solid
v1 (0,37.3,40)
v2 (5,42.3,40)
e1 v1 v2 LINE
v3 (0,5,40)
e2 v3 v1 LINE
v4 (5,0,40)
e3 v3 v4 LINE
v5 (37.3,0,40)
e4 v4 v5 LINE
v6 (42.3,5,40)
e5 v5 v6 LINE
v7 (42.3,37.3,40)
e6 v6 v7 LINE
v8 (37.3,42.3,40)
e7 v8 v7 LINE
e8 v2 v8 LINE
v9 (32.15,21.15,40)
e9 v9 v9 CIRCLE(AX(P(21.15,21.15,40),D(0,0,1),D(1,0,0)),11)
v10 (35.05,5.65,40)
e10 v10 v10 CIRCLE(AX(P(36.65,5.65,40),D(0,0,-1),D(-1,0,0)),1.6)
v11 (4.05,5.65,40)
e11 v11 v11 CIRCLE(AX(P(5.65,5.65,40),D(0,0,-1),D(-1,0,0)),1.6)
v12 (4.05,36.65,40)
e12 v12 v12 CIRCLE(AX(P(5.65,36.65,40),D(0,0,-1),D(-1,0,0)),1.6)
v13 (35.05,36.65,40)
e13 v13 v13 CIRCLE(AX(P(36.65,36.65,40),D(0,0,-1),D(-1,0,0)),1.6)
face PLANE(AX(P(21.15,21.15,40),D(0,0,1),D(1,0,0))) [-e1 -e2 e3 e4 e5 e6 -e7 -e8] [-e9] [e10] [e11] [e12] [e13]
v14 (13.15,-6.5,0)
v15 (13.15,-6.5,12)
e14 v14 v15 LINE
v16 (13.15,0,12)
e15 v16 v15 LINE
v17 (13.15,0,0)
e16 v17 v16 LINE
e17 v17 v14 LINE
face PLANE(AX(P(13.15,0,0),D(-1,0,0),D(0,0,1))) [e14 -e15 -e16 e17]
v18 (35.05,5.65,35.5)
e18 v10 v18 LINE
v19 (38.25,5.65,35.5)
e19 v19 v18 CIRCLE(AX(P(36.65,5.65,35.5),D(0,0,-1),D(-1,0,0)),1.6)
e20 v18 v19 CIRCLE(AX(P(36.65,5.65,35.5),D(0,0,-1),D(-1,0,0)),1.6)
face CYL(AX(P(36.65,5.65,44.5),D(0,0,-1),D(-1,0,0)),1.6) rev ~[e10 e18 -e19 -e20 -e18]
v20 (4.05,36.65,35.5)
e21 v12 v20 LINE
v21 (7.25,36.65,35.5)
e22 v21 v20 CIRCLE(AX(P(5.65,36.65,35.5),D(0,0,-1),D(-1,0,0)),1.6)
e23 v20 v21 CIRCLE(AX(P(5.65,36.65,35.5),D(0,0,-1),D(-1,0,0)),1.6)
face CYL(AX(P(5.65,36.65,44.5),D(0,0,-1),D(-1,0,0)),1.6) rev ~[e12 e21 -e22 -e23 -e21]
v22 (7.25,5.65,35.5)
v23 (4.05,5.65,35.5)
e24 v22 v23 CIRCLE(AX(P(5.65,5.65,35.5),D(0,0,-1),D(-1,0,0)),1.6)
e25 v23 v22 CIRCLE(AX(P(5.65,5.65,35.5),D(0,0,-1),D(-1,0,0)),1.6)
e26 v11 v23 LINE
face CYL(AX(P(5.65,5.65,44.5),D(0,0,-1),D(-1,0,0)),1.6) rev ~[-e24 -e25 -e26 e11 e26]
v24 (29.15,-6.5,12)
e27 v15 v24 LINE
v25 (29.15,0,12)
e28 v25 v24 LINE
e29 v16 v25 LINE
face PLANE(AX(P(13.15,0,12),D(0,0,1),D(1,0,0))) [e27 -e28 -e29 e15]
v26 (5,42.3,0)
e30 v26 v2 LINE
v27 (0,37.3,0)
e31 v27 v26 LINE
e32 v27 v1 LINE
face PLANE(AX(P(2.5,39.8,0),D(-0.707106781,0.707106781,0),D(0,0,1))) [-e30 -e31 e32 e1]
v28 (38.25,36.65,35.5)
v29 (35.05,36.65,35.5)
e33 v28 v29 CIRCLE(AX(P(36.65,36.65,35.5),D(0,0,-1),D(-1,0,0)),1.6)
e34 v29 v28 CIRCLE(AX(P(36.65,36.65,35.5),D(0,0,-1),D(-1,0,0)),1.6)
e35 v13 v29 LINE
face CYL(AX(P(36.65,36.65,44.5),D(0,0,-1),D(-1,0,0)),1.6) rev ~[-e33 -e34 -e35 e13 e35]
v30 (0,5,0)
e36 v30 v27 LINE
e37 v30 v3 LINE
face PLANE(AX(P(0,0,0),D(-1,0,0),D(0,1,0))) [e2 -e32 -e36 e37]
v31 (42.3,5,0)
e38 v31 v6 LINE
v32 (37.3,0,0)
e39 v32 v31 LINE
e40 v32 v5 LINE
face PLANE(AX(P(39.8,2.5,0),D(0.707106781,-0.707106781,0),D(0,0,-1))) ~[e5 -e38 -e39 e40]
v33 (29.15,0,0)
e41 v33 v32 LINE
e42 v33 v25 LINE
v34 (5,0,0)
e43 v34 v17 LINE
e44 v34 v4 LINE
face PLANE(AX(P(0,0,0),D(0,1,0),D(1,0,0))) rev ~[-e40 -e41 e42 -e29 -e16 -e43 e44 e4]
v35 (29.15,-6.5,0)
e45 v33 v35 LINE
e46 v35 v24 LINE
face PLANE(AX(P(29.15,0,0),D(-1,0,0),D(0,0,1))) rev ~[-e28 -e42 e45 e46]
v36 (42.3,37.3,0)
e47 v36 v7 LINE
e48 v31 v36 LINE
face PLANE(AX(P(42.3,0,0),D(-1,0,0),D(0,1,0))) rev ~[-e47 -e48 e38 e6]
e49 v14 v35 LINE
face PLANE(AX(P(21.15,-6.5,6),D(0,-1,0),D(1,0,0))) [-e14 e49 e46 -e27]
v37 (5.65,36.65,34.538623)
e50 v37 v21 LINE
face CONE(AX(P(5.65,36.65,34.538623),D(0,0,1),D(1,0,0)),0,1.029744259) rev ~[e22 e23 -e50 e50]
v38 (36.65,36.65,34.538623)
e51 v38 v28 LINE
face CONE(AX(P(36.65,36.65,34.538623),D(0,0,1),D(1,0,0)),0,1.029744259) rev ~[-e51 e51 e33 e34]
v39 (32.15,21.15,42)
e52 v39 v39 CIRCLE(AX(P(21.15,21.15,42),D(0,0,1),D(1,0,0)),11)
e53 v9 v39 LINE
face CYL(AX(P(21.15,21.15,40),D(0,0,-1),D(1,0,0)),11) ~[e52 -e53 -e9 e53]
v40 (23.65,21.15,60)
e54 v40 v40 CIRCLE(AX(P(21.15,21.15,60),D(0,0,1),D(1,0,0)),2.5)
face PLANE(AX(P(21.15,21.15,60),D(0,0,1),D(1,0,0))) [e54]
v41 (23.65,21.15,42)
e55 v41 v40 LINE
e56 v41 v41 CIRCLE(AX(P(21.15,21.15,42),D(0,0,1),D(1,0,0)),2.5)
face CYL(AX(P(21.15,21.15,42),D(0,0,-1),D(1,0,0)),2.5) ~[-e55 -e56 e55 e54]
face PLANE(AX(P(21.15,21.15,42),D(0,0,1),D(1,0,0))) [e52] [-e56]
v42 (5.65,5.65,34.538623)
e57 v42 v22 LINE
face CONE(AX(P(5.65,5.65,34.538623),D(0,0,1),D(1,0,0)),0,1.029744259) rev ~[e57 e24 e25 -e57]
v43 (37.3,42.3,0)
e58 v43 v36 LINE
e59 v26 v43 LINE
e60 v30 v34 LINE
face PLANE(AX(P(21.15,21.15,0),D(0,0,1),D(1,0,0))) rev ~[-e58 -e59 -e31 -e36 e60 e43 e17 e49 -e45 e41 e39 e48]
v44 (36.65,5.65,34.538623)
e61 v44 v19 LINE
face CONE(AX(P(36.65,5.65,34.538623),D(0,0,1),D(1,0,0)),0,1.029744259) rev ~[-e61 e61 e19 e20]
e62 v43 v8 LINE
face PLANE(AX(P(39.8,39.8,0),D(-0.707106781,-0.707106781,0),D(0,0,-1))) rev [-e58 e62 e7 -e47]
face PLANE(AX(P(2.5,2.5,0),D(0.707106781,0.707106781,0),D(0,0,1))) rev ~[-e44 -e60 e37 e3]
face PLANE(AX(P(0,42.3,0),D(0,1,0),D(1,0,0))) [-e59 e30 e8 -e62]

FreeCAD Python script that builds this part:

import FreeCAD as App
import Part
import Sketcher
Q = App.Units.Quantity


def edges_at(feature, points):
    """Names of the edges that pass closest to the given points."""
    edges = feature.Shape.Edges
    near = lambda p: min(range(len(edges)), key=lambda i: edges[i].distToShape(Part.Vertex(*p))[0])
    return sorted({f"Edge{near(p) + 1}" for p in points})


def add_polygon(sketch, points):
    """Adds a closed chain of lines whose ends are joined by coincident constraints."""
    first, n = sketch.GeometryCount, len(points)
    for a, b in zip(points, points[1:] + points[:1]):
        sketch.addGeometry(Part.LineSegment(App.Vector(*a, 0), App.Vector(*b, 0)), False)
    for i in range(n):
        sketch.addConstraint(Sketcher.Constraint("Coincident", first + i, 2, first + (i + 1) % n, 1))

doc = App.newDocument("Part")
body = doc.addObject("PartDesign::Body", "Body")

sketch1 = doc.addObject("Sketcher::SketchObject", "Sketch")
body.addObject(sketch1)
sketch1.AttachmentSupport = (doc.XY_Plane, [""])
sketch1.MapMode = "FlatFace"
add_polygon(sketch1, [(0, 42), (0, 0), (42, 0), (42, 42)])
sketch1.addConstraint([
    Sketcher.Constraint("Vertical", 0),
    Sketcher.Constraint("Horizontal", 1),
    Sketcher.Constraint("Vertical", 2),
    Sketcher.Constraint("Horizontal", 3),
    Sketcher.Constraint("Coincident", 0, 2, -1, 1),
    Sketcher.Constraint("Equal", 3, 0),
    Sketcher.Constraint("DistanceX", 1, 1, 1, 2, Q("42.3 mm")),
])
pad1 = doc.addObject("PartDesign::Pad", "Pad")
body.addObject(pad1)
pad1.Profile = sketch1
pad1.Length = 40

sketch2 = doc.addObject("Sketcher::SketchObject", "Sketch001")
body.addObject(sketch2)
sketch2.AttachmentSupport = (doc.XY_Plane, [""])
sketch2.MapMode = "FlatFace"
sketch2.AttachmentOffset = App.Placement(App.Vector(0, 0, 40), App.Rotation())
sketch2.addGeometry([
    Part.Circle(App.Vector(5.7, 36.6, 0), App.Vector(0, 0, 1), 1.6),
    Part.Circle(App.Vector(36.6, 36.6, 0), App.Vector(0, 0, 1), 1.6),
    Part.Circle(App.Vector(5.7, 5.7, 0), App.Vector(0, 0, 1), 1.6),
    Part.Circle(App.Vector(36.6, 5.7, 0), App.Vector(0, 0, 1), 1.6),
], False)
sketch2.addConstraint([
    Sketcher.Constraint("Equal", 0, 1),
    Sketcher.Constraint("Equal", 1, 2),
    Sketcher.Constraint("Equal", 2, 3),
    Sketcher.Constraint("Horizontal", 0, 3, 1, 3),
    Sketcher.Constraint("Horizontal", 2, 3, 3, 3),
    Sketcher.Constraint("Vertical", 0, 3, 2, 3),
    Sketcher.Constraint("Vertical", 1, 3, 3, 3),
    Sketcher.Constraint("Diameter", 0, Q("3.2 mm")),
    Sketcher.Constraint("DistanceX", 0, 3, 1, 3, Q("31 mm")),
    Sketcher.Constraint("DistanceY", 2, 3, 0, 3, Q("31 mm")),
    Sketcher.Constraint("DistanceX", -1, 1, 0, 3, Q("5.65 mm")),
    Sketcher.Constraint("DistanceY", -1, 1, 0, 3, Q("36.65 mm")),
])
doc.recompute()
hole = doc.addObject("PartDesign::Hole", "Hole")
body.addObject(hole)
hole.Profile = sketch2
hole.ThreadType = "None"
hole.Diameter = 3.2
hole.DepthType = "Dimension"
hole.Depth = 4.5
hole.DrillPoint = "Angled"
hole.DrillPointAngle = 118

sketch3 = doc.addObject("Sketcher::SketchObject", "Sketch002")
body.addObject(sketch3)
sketch3.AttachmentSupport = (doc.XY_Plane, [""])
sketch3.MapMode = "FlatFace"
sketch3.AttachmentOffset = App.Placement(App.Vector(0, 0, 40), App.Rotation())
sketch3.addGeometry(Part.Circle(App.Vector(21, 21, 0), App.Vector(0, 0, 1), 11), False)
sketch3.addConstraint([
    Sketcher.Constraint("Diameter", 0, Q("22 mm")),
    Sketcher.Constraint("DistanceX", -1, 1, 0, 3, Q("21.15 mm")),
    Sketcher.Constraint("DistanceY", -1, 1, 0, 3, Q("21.15 mm")),
])
pad2 = doc.addObject("PartDesign::Pad", "Pad001")
body.addObject(pad2)
pad2.Profile = sketch3
pad2.Length = 2

sketch4 = doc.addObject("Sketcher::SketchObject", "Sketch003")
body.addObject(sketch4)
sketch4.AttachmentSupport = (doc.XY_Plane, [""])
sketch4.MapMode = "FlatFace"
sketch4.AttachmentOffset = App.Placement(App.Vector(0, 0, 42), App.Rotation())
sketch4.addGeometry(Part.Circle(App.Vector(21.1, 21.1, 0), App.Vector(0, 0, 1), 2.5), False)
sketch4.addConstraint([
    Sketcher.Constraint("Diameter", 0, Q("5 mm")),
    Sketcher.Constraint("DistanceX", -1, 1, 0, 3, Q("21.15 mm")),
    Sketcher.Constraint("DistanceY", -1, 1, 0, 3, Q("21.15 mm")),
])
pad3 = doc.addObject("PartDesign::Pad", "Pad002")
body.addObject(pad3)
pad3.Profile = sketch4
pad3.Length = 18
doc.recompute()

chamfer = doc.addObject("PartDesign::Chamfer", "Chamfer")
body.addObject(chamfer)
chamfer.Base = (pad3, edges_at(pad3, [
    (42.3, 42.3, 20),
    (42.3, 0, 20),
    (0, 42.3, 20),
    (0, 0, 20),
]))
chamfer.Size = 5

sketch5 = doc.addObject("Sketcher::SketchObject", "Sketch004")
body.addObject(sketch5)
sketch5.AttachmentSupport = (doc.XZ_Plane, [""])
sketch5.MapMode = "FlatFace"
add_polygon(sketch5, [(13, 12), (13, 0), (29, 0), (29, 12)])
sketch5.addConstraint([
    Sketcher.Constraint("Vertical", 0),
    Sketcher.Constraint("Horizontal", 1),
    Sketcher.Constraint("Vertical", 2),
    Sketcher.Constraint("Horizontal", 3),
    Sketcher.Constraint("PointOnObject", 0, 2, -1),
    Sketcher.Constraint("DistanceX", 1, 1, 1, 2, Q("16 mm")),
    Sketcher.Constraint("DistanceY", 0, 2, 0, 1, Q("12 mm")),
    Sketcher.Constraint("DistanceX", -1, 1, 0, 2, Q("13.15 mm")),
])
pad4 = doc.addObject("PartDesign::Pad", "Pad003")
body.addObject(pad4)
pad4.Profile = sketch5
pad4.Length = 6.5

doc.recompute()
